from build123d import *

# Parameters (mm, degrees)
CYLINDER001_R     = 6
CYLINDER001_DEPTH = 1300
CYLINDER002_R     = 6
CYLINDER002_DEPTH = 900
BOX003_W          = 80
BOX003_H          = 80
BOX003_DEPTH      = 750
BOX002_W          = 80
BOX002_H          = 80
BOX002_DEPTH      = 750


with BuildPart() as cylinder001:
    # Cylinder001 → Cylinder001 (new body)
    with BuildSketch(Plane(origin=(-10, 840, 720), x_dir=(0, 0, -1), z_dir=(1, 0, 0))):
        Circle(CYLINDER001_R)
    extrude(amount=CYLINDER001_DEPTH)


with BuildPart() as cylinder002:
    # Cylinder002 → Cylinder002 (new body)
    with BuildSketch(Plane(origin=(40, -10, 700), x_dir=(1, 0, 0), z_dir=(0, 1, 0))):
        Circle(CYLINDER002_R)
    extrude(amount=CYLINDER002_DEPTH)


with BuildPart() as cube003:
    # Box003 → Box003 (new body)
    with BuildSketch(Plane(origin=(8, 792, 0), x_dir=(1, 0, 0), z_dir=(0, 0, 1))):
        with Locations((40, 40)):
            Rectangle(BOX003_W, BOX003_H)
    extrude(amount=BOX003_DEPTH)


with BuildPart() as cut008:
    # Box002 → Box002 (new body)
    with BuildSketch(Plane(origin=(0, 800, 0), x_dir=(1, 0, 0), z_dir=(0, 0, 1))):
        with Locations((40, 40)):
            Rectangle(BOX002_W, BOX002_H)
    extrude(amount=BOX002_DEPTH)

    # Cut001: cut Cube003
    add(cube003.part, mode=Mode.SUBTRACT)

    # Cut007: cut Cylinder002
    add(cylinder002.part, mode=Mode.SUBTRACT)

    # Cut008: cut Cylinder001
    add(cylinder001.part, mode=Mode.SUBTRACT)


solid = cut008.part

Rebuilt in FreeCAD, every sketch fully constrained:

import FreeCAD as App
import Part
import Sketcher

V = App.Vector
Q = App.Units.Quantity


def add_polygon(sketch, points):
    """Adds a closed chain of lines whose ends are joined by coincident constraints."""
    first, n = sketch.GeometryCount, len(points)
    for a, b in zip(points, points[1:] + points[:1]):
        sketch.addGeometry(Part.LineSegment(App.Vector(*a, 0), App.Vector(*b, 0)), False)
    for i in range(n):
        sketch.addConstraint(Sketcher.Constraint("Coincident", first + i, 2, first + (i + 1) % n, 1))

doc = App.newDocument("Part")
body = doc.addObject("PartDesign::Body", "Body")

# Sketch on YZ plane
sketch1 = body.newObject("Sketcher::SketchObject", "Sketch")
sketch1.AttachmentSupport = (doc.getObject("YZ_Plane"), [""])
sketch1.MapMode = "FlatFace"
sketch1.AttachmentOffset = App.Placement(V(0, 0, -10), App.Rotation())
sketch1.addGeometry(Part.Circle(V(840, 720, 0), V(0, 0, 1), 6), False)
sketch1.addConstraint(Sketcher.Constraint("Diameter", 0, Q("12 mm")))
sketch1.addConstraint(Sketcher.Constraint("DistanceX", -1, 1, 0, 3, Q("840 mm")))
sketch1.addConstraint(Sketcher.Constraint("DistanceY", -1, 1, 0, 3, Q("720 mm")))
pad1 = body.newObject("PartDesign::Pad", "Pad")
pad1.Profile = sketch1
pad1.Length = 1300
body2 = doc.addObject("PartDesign::Body", "Body001")

# Sketch on XZ plane
sketch2 = body2.newObject("Sketcher::SketchObject", "Sketch001")
sketch2.AttachmentSupport = (doc.getObject("XZ_Plane001"), [""])
sketch2.MapMode = "FlatFace"
sketch2.AttachmentOffset = App.Placement(V(0, 0, 10), App.Rotation())
sketch2.addGeometry(Part.Circle(V(40, 700, 0), V(0, 0, 1), 6), False)
sketch2.addConstraint(Sketcher.Constraint("Diameter", 0, Q("12 mm")))
sketch2.addConstraint(Sketcher.Constraint("DistanceX", -1, 1, 0, 3, Q("40 mm")))
sketch2.addConstraint(Sketcher.Constraint("DistanceY", -1, 1, 0, 3, Q("700 mm")))
pad2 = body2.newObject("PartDesign::Pad", "Pad001")
pad2.Profile = sketch2
pad2.Length = 900
pad2.Reversed = True
body3 = doc.addObject("PartDesign::Body", "Body002")

# Sketch on XY plane
sketch3 = body3.newObject("Sketcher::SketchObject", "Sketch002")
sketch3.AttachmentSupport = (doc.getObject("XY_Plane002"), [""])
sketch3.MapMode = "FlatFace"
add_polygon(sketch3, [(8, 872), (8, 792), (88, 792), (88, 872)])  # lines 0-3
sketch3.addConstraint(Sketcher.Constraint("Vertical", 0))
sketch3.addConstraint(Sketcher.Constraint("Horizontal", 1))
sketch3.addConstraint(Sketcher.Constraint("Vertical", 2))
sketch3.addConstraint(Sketcher.Constraint("Horizontal", 3))
sketch3.addConstraint(Sketcher.Constraint("Equal", 3, 0))
sketch3.addConstraint(Sketcher.Constraint("DistanceX", 1, 1, 1, 2, Q("80 mm")))
sketch3.addConstraint(Sketcher.Constraint("DistanceX", -1, 1, 0, 2, Q("8 mm")))
sketch3.addConstraint(Sketcher.Constraint("DistanceY", -1, 1, 0, 2, Q("792 mm")))
pad3 = body3.newObject("PartDesign::Pad", "Pad002")
pad3.Profile = sketch3
pad3.Length = 750
body4 = doc.addObject("PartDesign::Body", "Body003")

# Sketch on XY plane
sketch4 = body4.newObject("Sketcher::SketchObject", "Sketch003")
sketch4.AttachmentSupport = (doc.getObject("XY_Plane003"), [""])
sketch4.MapMode = "FlatFace"
add_polygon(sketch4, [(0, 880), (0, 800), (80, 800), (80, 880)])  # lines 0-3
sketch4.addConstraint(Sketcher.Constraint("Vertical", 0))
sketch4.addConstraint(Sketcher.Constraint("Horizontal", 1))
sketch4.addConstraint(Sketcher.Constraint("Vertical", 2))
sketch4.addConstraint(Sketcher.Constraint("Horizontal", 3))
sketch4.addConstraint(Sketcher.Constraint("PointOnObject", 0, 2, -2))
sketch4.addConstraint(Sketcher.Constraint("Equal", 3, 0))
sketch4.addConstraint(Sketcher.Constraint("DistanceX", 1, 1, 1, 2, Q("80 mm")))
sketch4.addConstraint(Sketcher.Constraint("DistanceY", -1, 1, 0, 2, Q("800 mm")))
pad4 = body4.newObject("PartDesign::Pad", "Pad003")
pad4.Profile = sketch4
pad4.Length = 750
doc.recompute()

boolean = body4.newObject("PartDesign::Boolean", "Boolean")
boolean.Type = "Cut"
boolean.addObjects([body3])
doc.recompute()

boolean2 = body4.newObject("PartDesign::Boolean", "Boolean001")
boolean2.Type = "Cut"
boolean2.addObjects([body2])
doc.recompute()

boolean3 = body4.newObject("PartDesign::Boolean", "Boolean002")
boolean3.Type = "Cut"
boolean3.addObjects([body])

doc.recompute()
